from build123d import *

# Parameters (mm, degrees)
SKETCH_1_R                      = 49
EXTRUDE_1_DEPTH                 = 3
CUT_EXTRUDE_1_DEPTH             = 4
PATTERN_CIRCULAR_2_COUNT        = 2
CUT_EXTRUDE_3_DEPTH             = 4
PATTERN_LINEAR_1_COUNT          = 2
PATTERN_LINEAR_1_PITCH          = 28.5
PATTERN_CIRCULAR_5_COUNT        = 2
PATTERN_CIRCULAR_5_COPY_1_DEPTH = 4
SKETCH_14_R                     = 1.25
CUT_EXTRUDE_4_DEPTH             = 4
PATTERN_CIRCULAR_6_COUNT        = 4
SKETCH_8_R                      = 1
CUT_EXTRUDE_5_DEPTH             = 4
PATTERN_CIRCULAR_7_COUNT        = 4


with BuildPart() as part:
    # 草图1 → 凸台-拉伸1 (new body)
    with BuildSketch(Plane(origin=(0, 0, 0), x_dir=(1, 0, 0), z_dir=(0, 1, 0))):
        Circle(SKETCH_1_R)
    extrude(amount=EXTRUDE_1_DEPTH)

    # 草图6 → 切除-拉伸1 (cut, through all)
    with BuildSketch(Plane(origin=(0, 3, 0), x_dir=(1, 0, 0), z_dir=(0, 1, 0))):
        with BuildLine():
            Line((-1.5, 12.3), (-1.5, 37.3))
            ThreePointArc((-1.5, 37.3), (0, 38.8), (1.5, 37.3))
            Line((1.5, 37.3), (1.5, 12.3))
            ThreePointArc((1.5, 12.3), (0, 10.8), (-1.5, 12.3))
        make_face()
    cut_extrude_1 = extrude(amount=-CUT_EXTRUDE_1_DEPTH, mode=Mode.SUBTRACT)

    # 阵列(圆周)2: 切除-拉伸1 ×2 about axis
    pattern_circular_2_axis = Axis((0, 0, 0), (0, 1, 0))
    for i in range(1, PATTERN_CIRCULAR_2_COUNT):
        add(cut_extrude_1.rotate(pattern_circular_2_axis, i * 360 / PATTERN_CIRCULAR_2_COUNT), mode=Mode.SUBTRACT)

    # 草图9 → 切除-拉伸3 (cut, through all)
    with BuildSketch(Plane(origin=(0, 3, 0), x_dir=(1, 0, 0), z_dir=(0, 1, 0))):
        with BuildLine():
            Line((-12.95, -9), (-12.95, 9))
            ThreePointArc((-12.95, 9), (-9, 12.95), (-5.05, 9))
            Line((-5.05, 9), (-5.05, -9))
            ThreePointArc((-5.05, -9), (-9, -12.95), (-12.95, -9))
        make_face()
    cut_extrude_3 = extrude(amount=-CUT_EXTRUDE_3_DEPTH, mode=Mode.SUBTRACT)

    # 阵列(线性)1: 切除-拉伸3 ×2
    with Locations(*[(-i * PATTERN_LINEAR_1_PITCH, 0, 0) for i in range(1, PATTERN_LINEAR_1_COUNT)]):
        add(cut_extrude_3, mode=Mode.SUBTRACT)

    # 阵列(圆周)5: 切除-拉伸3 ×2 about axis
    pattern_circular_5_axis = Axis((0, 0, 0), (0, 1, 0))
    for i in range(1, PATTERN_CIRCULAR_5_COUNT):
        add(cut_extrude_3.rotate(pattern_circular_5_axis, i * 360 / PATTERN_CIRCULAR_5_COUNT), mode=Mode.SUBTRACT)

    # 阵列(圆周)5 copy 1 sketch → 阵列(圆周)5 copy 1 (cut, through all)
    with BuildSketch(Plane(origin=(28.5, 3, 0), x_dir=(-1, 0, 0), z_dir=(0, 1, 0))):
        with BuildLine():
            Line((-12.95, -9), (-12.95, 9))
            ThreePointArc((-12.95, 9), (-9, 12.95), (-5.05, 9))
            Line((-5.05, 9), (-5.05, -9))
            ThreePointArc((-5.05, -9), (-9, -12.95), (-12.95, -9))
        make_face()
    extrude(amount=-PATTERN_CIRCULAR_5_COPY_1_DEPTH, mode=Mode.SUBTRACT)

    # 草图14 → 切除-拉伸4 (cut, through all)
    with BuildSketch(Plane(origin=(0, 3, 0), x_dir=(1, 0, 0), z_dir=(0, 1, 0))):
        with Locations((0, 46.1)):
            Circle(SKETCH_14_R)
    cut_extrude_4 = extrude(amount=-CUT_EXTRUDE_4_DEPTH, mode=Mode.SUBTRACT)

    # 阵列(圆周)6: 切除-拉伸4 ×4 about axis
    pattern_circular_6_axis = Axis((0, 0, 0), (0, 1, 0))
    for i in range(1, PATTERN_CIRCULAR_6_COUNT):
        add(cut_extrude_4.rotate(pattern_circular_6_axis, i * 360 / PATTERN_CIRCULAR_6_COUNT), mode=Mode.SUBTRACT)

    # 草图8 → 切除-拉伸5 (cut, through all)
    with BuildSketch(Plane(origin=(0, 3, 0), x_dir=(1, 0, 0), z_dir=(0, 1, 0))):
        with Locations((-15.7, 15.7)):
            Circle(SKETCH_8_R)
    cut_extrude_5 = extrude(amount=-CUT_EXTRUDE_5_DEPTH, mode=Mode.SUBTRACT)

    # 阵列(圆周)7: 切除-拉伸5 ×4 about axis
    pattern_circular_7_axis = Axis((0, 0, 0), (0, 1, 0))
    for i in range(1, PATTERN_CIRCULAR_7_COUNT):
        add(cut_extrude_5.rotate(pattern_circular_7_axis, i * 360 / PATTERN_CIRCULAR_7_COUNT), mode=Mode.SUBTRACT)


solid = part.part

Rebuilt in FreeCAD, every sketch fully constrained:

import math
import FreeCAD as App
import Part
import Sketcher

V = App.Vector
Q = App.Units.Quantity

doc = App.newDocument("Part")
body = doc.addObject("PartDesign::Body", "Body")

sketch1 = doc.addObject("Sketcher::SketchObject", "Sketch")
body.addObject(sketch1)
sketch1.AttachmentSupport = (doc.XZ_Plane, [""])
sketch1.MapMode = "FlatFace"
sketch1.addGeometry(Part.Circle(V(0, 0, 0), V(0, 0, 1), 49), False)
sketch1.addConstraint(Sketcher.Constraint("Coincident", 0, 3, -1, 1))
sketch1.addConstraint(Sketcher.Constraint("Diameter", 0, Q("98 mm")))
pad1 = doc.addObject("PartDesign::Pad", "Pad")
body.addObject(pad1)
pad1.Profile = sketch1
pad1.Length = 3
pad1.Reversed = True

sketch2 = doc.addObject("Sketcher::SketchObject", "Sketch001")
body.addObject(sketch2)
sketch2.AttachmentSupport = (doc.XZ_Plane, [""])
sketch2.MapMode = "FlatFace"
sketch2.AttachmentOffset = App.Placement(V(0, 0, -3), App.Rotation())
sketch2.addGeometry(Part.LineSegment(V(-1.5, -37.3, 0), V(-1.5, -12.3, 0)), False)
sketch2.addGeometry(Part.ArcOfCircle(Part.Circle(V(0, -12.3, 0), V(0, 0, 1), 1.5), math.radians(0), math.radians(180)), False)
sketch2.addGeometry(Part.LineSegment(V(1.5, -12.3, 0), V(1.5, -37.3, 0)), False)
sketch2.addGeometry(Part.ArcOfCircle(Part.Circle(V(0, -37.3, 0), V(0, 0, 1), 1.5), math.radians(180), math.radians(360)), False)
sketch2.addConstraint(Sketcher.Constraint("Tangent", 0, 2, 1, 2))
sketch2.addConstraint(Sketcher.Constraint("Tangent", 1, 1, 2, 1))
sketch2.addConstraint(Sketcher.Constraint("Tangent", 2, 2, 3, 2))
sketch2.addConstraint(Sketcher.Constraint("Tangent", 3, 1, 0, 1))
sketch2.addConstraint(Sketcher.Constraint("Vertical", 0))
sketch2.addConstraint(Sketcher.Constraint("Vertical", 2))
sketch2.addConstraint(Sketcher.Constraint("PointOnObject", 1, 3, -2))
sketch2.addConstraint(Sketcher.Constraint("Radius", 1, Q("1.5 mm")))
sketch2.addConstraint(Sketcher.Constraint("DistanceY", 0, 1, 0, 2, Q("25 mm")))
sketch2.addConstraint(Sketcher.Constraint("DistanceY", 1, 3, -1, 1, Q("12.3 mm")))
pocket1 = doc.addObject("PartDesign::Pocket", "Pocket")
body.addObject(pocket1)
pocket1.Profile = sketch2
pocket1.Type = "ThroughAll"
pocket1.Reversed = True
doc.recompute()

polarpattern = doc.addObject("PartDesign::PolarPattern", "PolarPattern")
body.addObject(polarpattern)
polarpattern.Originals = [pocket1]
polarpattern.Axis = (doc.Y_Axis, [""])
polarpattern.Angle = 360
polarpattern.Occurrences = 2
body.Tip = polarpattern

sketch3 = doc.addObject("Sketcher::SketchObject", "Sketch002")
body.addObject(sketch3)
sketch3.AttachmentSupport = (doc.XZ_Plane, [""])
sketch3.MapMode = "FlatFace"
sketch3.AttachmentOffset = App.Placement(V(0, 0, -3), App.Rotation())
sketch3.addGeometry(Part.LineSegment(V(-12.9, -9, 0), V(-12.9, 9, 0)), False)
sketch3.addGeometry(Part.ArcOfCircle(Part.Circle(V(-9, 9, 0), V(0, 0, 1), 4), math.radians(0), math.radians(180)), False)
sketch3.addGeometry(Part.LineSegment(V(-5, 9, 0), V(-5, -9, 0)), False)
sketch3.addGeometry(Part.ArcOfCircle(Part.Circle(V(-9, -9, 0), V(0, 0, 1), 4), math.radians(180), math.radians(360)), False)
sketch3.addConstraint(Sketcher.Constraint("Tangent", 0, 2, 1, 2))
sketch3.addConstraint(Sketcher.Constraint("Tangent", 1, 1, 2, 1))
sketch3.addConstraint(Sketcher.Constraint("Tangent", 2, 2, 3, 2))
sketch3.addConstraint(Sketcher.Constraint("Tangent", 3, 1, 0, 1))
sketch3.addConstraint(Sketcher.Constraint("Vertical", 0))
sketch3.addConstraint(Sketcher.Constraint("Vertical", 2))
sketch3.addConstraint(Sketcher.Constraint("DistanceY", 0, 1, 0, 2, Q("18 mm")))
sketch3.addConstraint(Sketcher.Constraint("Radius", 1, Q("3.95 mm")))
sketch3.addConstraint(Sketcher.Constraint("DistanceX", 1, 3, -1, 1, Q("9 mm")))
sketch3.addConstraint(Sketcher.Constraint("DistanceY", -1, 1, 1, 3, Q("9 mm")))
pocket2 = doc.addObject("PartDesign::Pocket", "Pocket001")
body.addObject(pocket2)
pocket2.Profile = sketch3
pocket2.Type = "ThroughAll"
pocket2.Reversed = True
doc.recompute()

linearpattern = doc.addObject("PartDesign::LinearPattern", "LinearPattern")
body.addObject(linearpattern)
linearpattern.Originals = [pocket2]
linearpattern.Direction = (doc.X_Axis, [""])
linearpattern.Mode = "offset"
linearpattern.Offset = 28.5
linearpattern.Occurrences = 2
linearpattern.Reversed = True
body.Tip = linearpattern
doc.recompute()

polarpattern2 = doc.addObject("PartDesign::PolarPattern", "PolarPattern001")
body.addObject(polarpattern2)
polarpattern2.Originals = [pocket2]
polarpattern2.Axis = (doc.Y_Axis, [""])
polarpattern2.Angle = 360
polarpattern2.Occurrences = 2
body.Tip = polarpattern2

sketch4 = doc.addObject("Sketcher::SketchObject", "Sketch003")
body.addObject(sketch4)
sketch4.AttachmentSupport = (doc.XZ_Plane, [""])
sketch4.MapMode = "FlatFace"
sketch4.AttachmentOffset = App.Placement(V(0, 0, -3), App.Rotation())
sketch4.addGeometry(Part.LineSegment(V(41.5, 9, 0), V(41.5, -9, 0)), False)
sketch4.addGeometry(Part.ArcOfCircle(Part.Circle(V(37.5, -9, 0), V(0, 0, 1), 4), math.radians(180), math.radians(360)), False)
sketch4.addGeometry(Part.LineSegment(V(33.5, -9, 0), V(33.5, 9, 0)), False)
sketch4.addGeometry(Part.ArcOfCircle(Part.Circle(V(37.5, 9, 0), V(0, 0, 1), 4), math.radians(0), math.radians(180)), False)
sketch4.addConstraint(Sketcher.Constraint("Tangent", 0, 2, 1, 2))
sketch4.addConstraint(Sketcher.Constraint("Tangent", 1, 1, 2, 1))
sketch4.addConstraint(Sketcher.Constraint("Tangent", 2, 2, 3, 2))
sketch4.addConstraint(Sketcher.Constraint("Tangent", 3, 1, 0, 1))
sketch4.addConstraint(Sketcher.Constraint("Vertical", 0))
sketch4.addConstraint(Sketcher.Constraint("Vertical", 2))
sketch4.addConstraint(Sketcher.Constraint("DistanceY", 0, 2, 0, 1, Q("18 mm")))
sketch4.addConstraint(Sketcher.Constraint("Radius", 1, Q("3.95 mm")))
sketch4.addConstraint(Sketcher.Constraint("DistanceY", 1, 3, -1, 1, Q("9 mm")))
sketch4.addConstraint(Sketcher.Constraint("DistanceX", -1, 1, 1, 3, Q("37.5 mm")))
pocket3 = doc.addObject("PartDesign::Pocket", "Pocket002")
body.addObject(pocket3)
pocket3.Profile = sketch4
pocket3.Type = "ThroughAll"
pocket3.Reversed = True

sketch5 = doc.addObject("Sketcher::SketchObject", "Sketch004")
body.addObject(sketch5)
sketch5.AttachmentSupport = (doc.XZ_Plane, [""])
sketch5.MapMode = "FlatFace"
sketch5.AttachmentOffset = App.Placement(V(0, 0, -3), App.Rotation())
sketch5.addGeometry(Part.Circle(V(0, -46.1, 0), V(0, 0, 1), 1.2), False)
sketch5.addConstraint(Sketcher.Constraint("PointOnObject", 0, 3, -2))
sketch5.addConstraint(Sketcher.Constraint("Diameter", 0, Q("2.5 mm")))
sketch5.addConstraint(Sketcher.Constraint("DistanceY", 0, 3, -1, 1, Q("46.1 mm")))
pocket4 = doc.addObject("PartDesign::Pocket", "Pocket003")
body.addObject(pocket4)
pocket4.Profile = sketch5
pocket4.Type = "ThroughAll"
pocket4.Reversed = True
doc.recompute()

polarpattern3 = doc.addObject("PartDesign::PolarPattern", "PolarPattern002")
body.addObject(polarpattern3)
polarpattern3.Originals = [pocket4]
polarpattern3.Axis = (doc.Y_Axis, [""])
polarpattern3.Angle = 360
polarpattern3.Occurrences = 4
body.Tip = polarpattern3

sketch6 = doc.addObject("Sketcher::SketchObject", "Sketch005")
body.addObject(sketch6)
sketch6.AttachmentSupport = (doc.XZ_Plane, [""])
sketch6.MapMode = "FlatFace"
sketch6.AttachmentOffset = App.Placement(V(0, 0, -3), App.Rotation())
sketch6.addGeometry(Part.Circle(V(-15.7, -15.7, 0), V(0, 0, 1), 1), False)
sketch6.addConstraint(Sketcher.Constraint("Diameter", 0, Q("2 mm")))
sketch6.addConstraint(Sketcher.Constraint("DistanceX", 0, 3, -1, 1, Q("15.7 mm")))
sketch6.addConstraint(Sketcher.Constraint("DistanceY", 0, 3, -1, 1, Q("15.7 mm")))
pocket5 = doc.addObject("PartDesign::Pocket", "Pocket004")
body.addObject(pocket5)
pocket5.Profile = sketch6
pocket5.Type = "ThroughAll"
pocket5.Reversed = True
doc.recompute()

polarpattern4 = doc.addObject("PartDesign::PolarPattern", "PolarPattern003")
body.addObject(polarpattern4)
polarpattern4.Originals = [pocket5]
polarpattern4.Axis = (doc.Y_Axis, [""])
polarpattern4.Angle = 360
polarpattern4.Occurrences = 4
body.Tip = polarpattern4

doc.recompute()
